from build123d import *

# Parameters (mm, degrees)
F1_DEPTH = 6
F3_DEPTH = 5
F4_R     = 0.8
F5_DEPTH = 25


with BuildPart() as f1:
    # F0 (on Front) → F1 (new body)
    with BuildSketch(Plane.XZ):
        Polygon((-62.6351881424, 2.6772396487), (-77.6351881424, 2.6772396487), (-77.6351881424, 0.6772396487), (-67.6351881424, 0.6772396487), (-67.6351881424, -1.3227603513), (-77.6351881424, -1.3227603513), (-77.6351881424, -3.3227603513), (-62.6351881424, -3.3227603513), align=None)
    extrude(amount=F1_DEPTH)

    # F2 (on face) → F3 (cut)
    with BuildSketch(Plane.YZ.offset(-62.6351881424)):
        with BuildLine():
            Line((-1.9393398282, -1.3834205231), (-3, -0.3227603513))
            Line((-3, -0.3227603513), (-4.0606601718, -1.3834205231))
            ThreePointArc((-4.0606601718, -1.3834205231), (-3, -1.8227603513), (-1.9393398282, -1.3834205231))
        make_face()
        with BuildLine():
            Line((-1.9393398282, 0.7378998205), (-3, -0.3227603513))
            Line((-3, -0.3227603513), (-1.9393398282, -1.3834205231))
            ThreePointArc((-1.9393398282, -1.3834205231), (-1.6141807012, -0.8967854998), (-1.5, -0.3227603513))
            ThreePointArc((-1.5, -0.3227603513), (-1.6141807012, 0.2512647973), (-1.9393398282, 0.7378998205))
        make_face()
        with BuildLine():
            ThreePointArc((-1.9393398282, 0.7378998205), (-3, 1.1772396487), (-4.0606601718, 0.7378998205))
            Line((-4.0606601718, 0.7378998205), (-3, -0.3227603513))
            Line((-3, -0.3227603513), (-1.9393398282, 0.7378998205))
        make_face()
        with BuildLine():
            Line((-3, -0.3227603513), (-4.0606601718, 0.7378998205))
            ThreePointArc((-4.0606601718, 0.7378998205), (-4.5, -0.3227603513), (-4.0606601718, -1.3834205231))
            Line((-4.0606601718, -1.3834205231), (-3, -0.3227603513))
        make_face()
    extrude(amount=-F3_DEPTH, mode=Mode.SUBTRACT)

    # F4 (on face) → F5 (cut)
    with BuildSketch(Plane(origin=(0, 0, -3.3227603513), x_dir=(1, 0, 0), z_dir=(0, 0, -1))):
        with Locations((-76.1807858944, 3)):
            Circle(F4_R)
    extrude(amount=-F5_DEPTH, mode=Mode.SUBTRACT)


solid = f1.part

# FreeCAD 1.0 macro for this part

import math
import FreeCAD as App
import Part
import Sketcher

V = App.Vector


def add_polygon(sketch, points):
    """Adds a closed chain of lines whose ends are joined by coincident constraints."""
    first, n = sketch.GeometryCount, len(points)
    for a, b in zip(points, points[1:] + points[:1]):
        sketch.addGeometry(Part.LineSegment(App.Vector(*a, 0), App.Vector(*b, 0)), False)
    for i in range(n):
        sketch.addConstraint(Sketcher.Constraint("Coincident", first + i, 2, first + (i + 1) % n, 1))

doc = App.newDocument("Part")
body = doc.addObject("PartDesign::Body", "Body")

sketch1 = body.newObject("Sketcher::SketchObject", "Sketch")
sketch1.AttachmentSupport = (doc.getObject("XZ_Plane"), [""])
sketch1.MapMode = "FlatFace"
add_polygon(sketch1, [(-62.6, 2.7), (-77.6, 2.7), (-77.6, 0.7), (-67.6, 0.7), (-67.6, -1.3), (-77.6, -1.3), (-77.6, -3.3), (-62.6, -3.3)])
sketch1.addConstraint([
    Sketcher.Constraint("Horizontal", 0),
    Sketcher.Constraint("Vertical", 1),
    Sketcher.Constraint("Horizontal", 2),
    Sketcher.Constraint("Vertical", 3),
    Sketcher.Constraint("Horizontal", 4),
    Sketcher.Constraint("Vertical", 5),
    Sketcher.Constraint("Horizontal", 6),
    Sketcher.Constraint("Vertical", 7),
    Sketcher.Constraint("Vertical", 1, 2, 4, 2),
    Sketcher.Constraint("Equal", 1, 3),
    Sketcher.Constraint("Equal", 3, 5),
    Sketcher.Constraint("DistanceX", 0, 2, 0, 1, 15.0),
    Sketcher.Constraint("DistanceX", 2, 1, 2, 2, 10.0),
    Sketcher.Constraint("DistanceY", 1, 2, 1, 1, 2.0),
    Sketcher.Constraint("DistanceX", 0, 2, -1, 1, 77.635188),
    Sketcher.Constraint("DistanceY", -1, 1, 0, 2, 2.67724),
])
pad1 = body.newObject("PartDesign::Pad", "Pad")
pad1.Profile = sketch1
pad1.Length = 6

sketch2 = body.newObject("Sketcher::SketchObject", "Sketch001")
sketch2.AttachmentSupport = (doc.getObject("YZ_Plane"), [""])
sketch2.MapMode = "FlatFace"
sketch2.AttachmentOffset = App.Placement(V(0, 0, -62.635188), App.Rotation())
sketch2.addGeometry([
    Part.ArcOfCircle(Part.Circle(V(-3, -0.3, 0), V(0, 0, 1), 1.5), math.radians(-135), math.radians(-45)),
    Part.ArcOfCircle(Part.Circle(V(-3, -0.3, 0), V(0, 0, 1), 1.5), math.radians(-45), math.radians(0)),
    Part.ArcOfCircle(Part.Circle(V(-3, -0.3, 0), V(0, 0, 1), 1.5), math.radians(0), math.radians(45)),
    Part.ArcOfCircle(Part.Circle(V(-3, -0.3, 0), V(0, 0, 1), 1.5), math.radians(45), math.radians(135)),
    Part.ArcOfCircle(Part.Circle(V(-3, -0.3, 0), V(0, 0, 1), 1.5), math.radians(135), math.radians(225)),
], False)
sketch2.addConstraint([
    Sketcher.Constraint("Tangent", 0, 2, 1, 1),
    Sketcher.Constraint("Tangent", 1, 2, 2, 1),
    Sketcher.Constraint("Tangent", 2, 2, 3, 1),
    Sketcher.Constraint("Tangent", 3, 2, 4, 1),
    Sketcher.Constraint("Tangent", 4, 2, 0, 1),
    Sketcher.Constraint("Coincident", 2, 3, 0, 3),
    Sketcher.Constraint("Horizontal", 4, 3, 1, 2),
    Sketcher.Constraint("Horizontal", 2, 2, 3, 2),
    Sketcher.Constraint("Horizontal", 0, 2, 4, 2),
    Sketcher.Constraint("Vertical", 0, 2, 2, 2),
    Sketcher.Constraint("Radius", 0, 1.5),
    Sketcher.Constraint("DistanceX", 0, 3, -1, 1, 3.0),
    Sketcher.Constraint("DistanceY", -1, 1, 2, 2, 0.7379),
    Sketcher.Constraint("DistanceY", 0, 3, -1, 1, 0.32276),
])
pocket1 = body.newObject("PartDesign::Pocket", "Pocket")
pocket1.Profile = sketch2
pocket1.Length = 5

sketch3 = body.newObject("Sketcher::SketchObject", "Sketch002")
sketch3.AttachmentSupport = (doc.getObject("XY_Plane"), [""])
sketch3.MapMode = "FlatFace"
sketch3.AttachmentOffset = App.Placement(V(0, 0, -3.32276), App.Rotation())
sketch3.addGeometry(Part.Circle(V(-76.2, -3, 0), V(0, 0, 1), 0.8), False)
sketch3.addConstraint([
    Sketcher.Constraint("Diameter", 0, 1.6),
    Sketcher.Constraint("DistanceY", 0, 3, -1, 1, 3.0),
    Sketcher.Constraint("DistanceX", 0, 3, -1, 1, 76.180786),
])
pocket2 = body.newObject("PartDesign::Pocket", "Pocket001")
pocket2.Profile = sketch3
pocket2.Length = 25
pocket2.Reversed = True

doc.recompute()
